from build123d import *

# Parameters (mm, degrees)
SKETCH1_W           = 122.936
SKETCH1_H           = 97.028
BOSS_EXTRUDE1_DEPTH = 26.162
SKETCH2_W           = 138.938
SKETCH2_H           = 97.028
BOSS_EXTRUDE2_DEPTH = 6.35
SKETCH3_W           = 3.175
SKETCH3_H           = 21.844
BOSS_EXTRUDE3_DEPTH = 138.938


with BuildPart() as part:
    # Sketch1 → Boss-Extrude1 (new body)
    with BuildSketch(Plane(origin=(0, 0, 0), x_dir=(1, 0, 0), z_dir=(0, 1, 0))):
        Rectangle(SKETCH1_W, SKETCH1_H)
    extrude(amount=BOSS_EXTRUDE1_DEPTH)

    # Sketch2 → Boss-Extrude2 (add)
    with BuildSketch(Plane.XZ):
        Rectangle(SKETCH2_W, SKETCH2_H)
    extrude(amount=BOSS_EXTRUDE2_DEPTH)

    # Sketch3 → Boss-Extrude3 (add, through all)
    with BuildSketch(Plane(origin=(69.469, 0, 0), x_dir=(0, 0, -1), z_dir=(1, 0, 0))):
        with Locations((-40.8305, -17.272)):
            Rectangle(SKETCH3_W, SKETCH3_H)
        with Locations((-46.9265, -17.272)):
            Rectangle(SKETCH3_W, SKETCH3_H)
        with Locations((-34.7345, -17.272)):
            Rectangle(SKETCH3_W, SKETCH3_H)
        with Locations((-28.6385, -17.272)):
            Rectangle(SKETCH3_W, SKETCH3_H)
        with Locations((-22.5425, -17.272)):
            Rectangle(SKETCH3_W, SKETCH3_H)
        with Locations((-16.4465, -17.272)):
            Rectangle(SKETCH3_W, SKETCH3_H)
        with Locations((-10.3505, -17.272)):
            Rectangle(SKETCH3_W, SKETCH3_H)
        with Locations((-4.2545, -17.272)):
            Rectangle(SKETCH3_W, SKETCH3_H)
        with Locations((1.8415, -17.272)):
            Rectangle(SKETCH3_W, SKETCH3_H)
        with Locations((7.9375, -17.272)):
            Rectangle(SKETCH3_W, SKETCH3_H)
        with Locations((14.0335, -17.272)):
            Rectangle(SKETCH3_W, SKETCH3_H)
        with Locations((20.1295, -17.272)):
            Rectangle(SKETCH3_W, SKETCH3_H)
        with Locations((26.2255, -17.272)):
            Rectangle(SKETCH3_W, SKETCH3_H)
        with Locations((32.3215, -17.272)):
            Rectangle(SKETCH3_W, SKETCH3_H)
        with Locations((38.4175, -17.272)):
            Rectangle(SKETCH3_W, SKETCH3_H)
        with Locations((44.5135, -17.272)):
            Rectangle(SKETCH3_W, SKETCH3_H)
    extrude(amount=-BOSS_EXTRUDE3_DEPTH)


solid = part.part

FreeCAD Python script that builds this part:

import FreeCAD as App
import Part
import Sketcher

V = App.Vector
Q = App.Units.Quantity


def add_polygon(sketch, points):
    """Adds a closed chain of lines whose ends are joined by coincident constraints."""
    first, n = sketch.GeometryCount, len(points)
    for a, b in zip(points, points[1:] + points[:1]):
        sketch.addGeometry(Part.LineSegment(App.Vector(*a, 0), App.Vector(*b, 0)), False)
    for i in range(n):
        sketch.addConstraint(Sketcher.Constraint("Coincident", first + i, 2, first + (i + 1) % n, 1))

doc = App.newDocument("Part")
body = doc.addObject("PartDesign::Body", "Body")

# Sketch on XZ plane
sketch1 = body.newObject("Sketcher::SketchObject", "Sketch")
sketch1.AttachmentSupport = (doc.getObject("XZ_Plane"), [""])
sketch1.MapMode = "FlatFace"
add_polygon(sketch1, [(-61.468, -48.514), (-61.468, 48.514), (61.468, 48.514), (61.468, -48.514)])  # lines 0-3
sketch1.addConstraint(Sketcher.Constraint("Vertical", 0))
sketch1.addConstraint(Sketcher.Constraint("Horizontal", 1))
sketch1.addConstraint(Sketcher.Constraint("Vertical", 2))
sketch1.addConstraint(Sketcher.Constraint("Horizontal", 3))
sketch1.addConstraint(Sketcher.Constraint("Symmetric", 0, 2, 2, 2, -1, 1))
sketch1.addConstraint(Sketcher.Constraint("DistanceX", 1, 1, 1, 2, Q("4.84 in")))
sketch1.addConstraint(Sketcher.Constraint("DistanceY", 0, 1, 0, 2, Q("3.82 in")))
pad1 = body.newObject("PartDesign::Pad", "Pad")
pad1.Profile = sketch1
pad1.Length = Q("1.03 in")
pad1.Reversed = True

# Sketch on XZ plane
sketch2 = body.newObject("Sketcher::SketchObject", "Sketch001")
sketch2.AttachmentSupport = (doc.getObject("XZ_Plane"), [""])
sketch2.MapMode = "FlatFace"
add_polygon(sketch2, [(-69.469, 48.514), (-69.469, -48.514), (69.469, -48.514), (69.469, 48.514)])  # lines 0-3
sketch2.addConstraint(Sketcher.Constraint("Vertical", 0))
sketch2.addConstraint(Sketcher.Constraint("Horizontal", 1))
sketch2.addConstraint(Sketcher.Constraint("Vertical", 2))
sketch2.addConstraint(Sketcher.Constraint("Horizontal", 3))
sketch2.addConstraint(Sketcher.Constraint("Symmetric", 0, 2, 2, 2, -1, 1))
sketch2.addConstraint(Sketcher.Constraint("DistanceX", 1, 1, 1, 2, Q("5.47 in")))
sketch2.addConstraint(Sketcher.Constraint("DistanceY", 0, 2, 0, 1, Q("3.82 in")))
pad2 = body.newObject("PartDesign::Pad", "Pad001")
pad2.Profile = sketch2
pad2.Length = Q("0.25 in")

# Sketch on YZ plane
sketch3 = body.newObject("Sketcher::SketchObject", "Sketch002")
sketch3.AttachmentSupport = (doc.getObject("YZ_Plane"), [""])
sketch3.MapMode = "FlatFace"
sketch3.AttachmentOffset = App.Placement(V(0, 0, 2.735 * 25.4), App.Rotation())
add_polygon(sketch3, [(-6.35, 42.418), (-28.194, 42.418), (-28.194, 39.243), (-6.35, 39.243)])  # lines 0-3
add_polygon(sketch3, [(-6.35, 48.514), (-28.194, 48.514), (-28.194, 45.339), (-6.35, 45.339)])  # lines 4-7
add_polygon(sketch3, [(-6.35, 36.322), (-28.194, 36.322), (-28.194, 33.147), (-6.35, 33.147)])  # lines 8-11
add_polygon(sketch3, [(-6.35, 30.226), (-28.194, 30.226), (-28.194, 27.051), (-6.35, 27.051)])  # lines 12-15
add_polygon(sketch3, [(-6.35, 24.13), (-28.194, 24.13), (-28.194, 20.955), (-6.35, 20.955)])  # lines 16-19
add_polygon(sketch3, [(-6.35, 18.034), (-28.194, 18.034), (-28.194, 14.859), (-6.35, 14.859)])  # lines 20-23
add_polygon(sketch3, [(-6.35, 11.938), (-28.194, 11.938), (-28.194, 8.763), (-6.35, 8.763)])  # lines 24-27
add_polygon(sketch3, [(-6.35, 5.842), (-28.194, 5.842), (-28.194, 2.667), (-6.35, 2.667)])  # lines 28-31
add_polygon(sketch3, [(-6.35, -0.254), (-28.194, -0.254), (-28.194, -3.429), (-6.35, -3.429)])  # lines 32-35
add_polygon(sketch3, [(-6.35, -6.35), (-28.194, -6.35), (-28.194, -9.525), (-6.35, -9.525)])  # lines 36-39
add_polygon(sketch3, [(-6.35, -12.446), (-28.194, -12.446), (-28.194, -15.621), (-6.35, -15.621)])  # lines 40-43
add_polygon(sketch3, [(-6.35, -18.542), (-28.194, -18.542), (-28.194, -21.717), (-6.35, -21.717)])  # lines 44-47
add_polygon(sketch3, [(-6.35, -24.638), (-28.194, -24.638), (-28.194, -27.813), (-6.35, -27.813)])  # lines 48-51
add_polygon(sketch3, [(-6.35, -30.734), (-28.194, -30.734), (-28.194, -33.909), (-6.35, -33.909)])  # lines 52-55
add_polygon(sketch3, [(-6.35, -36.83), (-28.194, -36.83), (-28.194, -40.005), (-6.35, -40.005)])  # lines 56-59
add_polygon(sketch3, [(-6.35, -42.926), (-28.194, -42.926), (-28.194, -46.101), (-6.35, -46.101)])  # lines 60-63
sketch3.addConstraint(Sketcher.Constraint("Horizontal", 0))
sketch3.addConstraint(Sketcher.Constraint("Vertical", 1))
sketch3.addConstraint(Sketcher.Constraint("Horizontal", 2))
sketch3.addConstraint(Sketcher.Constraint("Vertical", 3))
sketch3.addConstraint(Sketcher.Constraint("Horizontal", 4))
sketch3.addConstraint(Sketcher.Constraint("Vertical", 5))
sketch3.addConstraint(Sketcher.Constraint("Horizontal", 6))
sketch3.addConstraint(Sketcher.Constraint("Vertical", 7))
sketch3.addConstraint(Sketcher.Constraint("Horizontal", 8))
sketch3.addConstraint(Sketcher.Constraint("Vertical", 9))
sketch3.addConstraint(Sketcher.Constraint("Horizontal", 10))
sketch3.addConstraint(Sketcher.Constraint("Vertical", 11))
sketch3.addConstraint(Sketcher.Constraint("Horizontal", 12))
sketch3.addConstraint(Sketcher.Constraint("Vertical", 13))
sketch3.addConstraint(Sketcher.Constraint("Horizontal", 14))
sketch3.addConstraint(Sketcher.Constraint("Vertical", 15))
sketch3.addConstraint(Sketcher.Constraint("Horizontal", 16))
sketch3.addConstraint(Sketcher.Constraint("Vertical", 17))
sketch3.addConstraint(Sketcher.Constraint("Horizontal", 18))
sketch3.addConstraint(Sketcher.Constraint("Vertical", 19))
sketch3.addConstraint(Sketcher.Constraint("Horizontal", 20))
sketch3.addConstraint(Sketcher.Constraint("Vertical", 21))
sketch3.addConstraint(Sketcher.Constraint("Horizontal", 22))
sketch3.addConstraint(Sketcher.Constraint("Vertical", 23))
sketch3.addConstraint(Sketcher.Constraint("Horizontal", 24))
sketch3.addConstraint(Sketcher.Constraint("Vertical", 25))
sketch3.addConstraint(Sketcher.Constraint("Horizontal", 26))
sketch3.addConstraint(Sketcher.Constraint("Vertical", 27))
sketch3.addConstraint(Sketcher.Constraint("Horizontal", 28))
sketch3.addConstraint(Sketcher.Constraint("Vertical", 29))
sketch3.addConstraint(Sketcher.Constraint("Horizontal", 30))
sketch3.addConstraint(Sketcher.Constraint("Vertical", 31))
sketch3.addConstraint(Sketcher.Constraint("Horizontal", 32))
sketch3.addConstraint(Sketcher.Constraint("Vertical", 33))
sketch3.addConstraint(Sketcher.Constraint("Horizontal", 34))
sketch3.addConstraint(Sketcher.Constraint("Vertical", 35))
sketch3.addConstraint(Sketcher.Constraint("Horizontal", 36))
sketch3.addConstraint(Sketcher.Constraint("Vertical", 37))
sketch3.addConstraint(Sketcher.Constraint("Horizontal", 38))
sketch3.addConstraint(Sketcher.Constraint("Vertical", 39))
sketch3.addConstraint(Sketcher.Constraint("Horizontal", 40))
sketch3.addConstraint(Sketcher.Constraint("Vertical", 41))
sketch3.addConstraint(Sketcher.Constraint("Horizontal", 42))
sketch3.addConstraint(Sketcher.Constraint("Vertical", 43))
sketch3.addConstraint(Sketcher.Constraint("Horizontal", 44))
sketch3.addConstraint(Sketcher.Constraint("Vertical", 45))
sketch3.addConstraint(Sketcher.Constraint("Horizontal", 46))
sketch3.addConstraint(Sketcher.Constraint("Vertical", 47))
sketch3.addConstraint(Sketcher.Constraint("Horizontal", 48))
sketch3.addConstraint(Sketcher.Constraint("Vertical", 49))
sketch3.addConstraint(Sketcher.Constraint("Horizontal", 50))
sketch3.addConstraint(Sketcher.Constraint("Vertical", 51))
sketch3.addConstraint(Sketcher.Constraint("Horizontal", 52))
sketch3.addConstraint(Sketcher.Constraint("Vertical", 53))
sketch3.addConstraint(Sketcher.Constraint("Horizontal", 54))
sketch3.addConstraint(Sketcher.Constraint("Vertical", 55))
sketch3.addConstraint(Sketcher.Constraint("Horizontal", 56))
sketch3.addConstraint(Sketcher.Constraint("Vertical", 57))
sketch3.addConstraint(Sketcher.Constraint("Horizontal", 58))
sketch3.addConstraint(Sketcher.Constraint("Vertical", 59))
sketch3.addConstraint(Sketcher.Constraint("Horizontal", 60))
sketch3.addConstraint(Sketcher.Constraint("Vertical", 61))
sketch3.addConstraint(Sketcher.Constraint("Horizontal", 62))
sketch3.addConstraint(Sketcher.Constraint("Vertical", 63))
sketch3.addConstraint(Sketcher.Constraint("Vertical", 1, 2, 4, 2))
sketch3.addConstraint(Sketcher.Constraint("Vertical", 3, 2, 6, 2))
sketch3.addConstraint(Sketcher.Constraint("Vertical", 5, 2, 8, 2))
sketch3.addConstraint(Sketcher.Constraint("Vertical", 7, 2, 10, 2))
sketch3.addConstraint(Sketcher.Constraint("Vertical", 9, 2, 12, 2))
sketch3.addConstraint(Sketcher.Constraint("Vertical", 11, 2, 14, 2))
sketch3.addConstraint(Sketcher.Constraint("Vertical", 13, 2, 16, 2))
sketch3.addConstraint(Sketcher.Constraint("Vertical", 15, 2, 18, 2))
sketch3.addConstraint(Sketcher.Constraint("Vertical", 17, 2, 20, 2))
sketch3.addConstraint(Sketcher.Constraint("Vertical", 19, 2, 22, 2))
sketch3.addConstraint(Sketcher.Constraint("Vertical", 21, 2, 24, 2))
sketch3.addConstraint(Sketcher.Constraint("Vertical", 23, 2, 26, 2))
sketch3.addConstraint(Sketcher.Constraint("Vertical", 25, 2, 28, 2))
sketch3.addConstraint(Sketcher.Constraint("Vertical", 27, 2, 30, 2))
sketch3.addConstraint(Sketcher.Constraint("Vertical", 29, 2, 32, 2))
sketch3.addConstraint(Sketcher.Constraint("Vertical", 31, 2, 34, 2))
sketch3.addConstraint(Sketcher.Constraint("Vertical", 33, 2, 36, 2))
sketch3.addConstraint(Sketcher.Constraint("Vertical", 35, 2, 38, 2))
sketch3.addConstraint(Sketcher.Constraint("Vertical", 37, 2, 40, 2))
sketch3.addConstraint(Sketcher.Constraint("Vertical", 39, 2, 42, 2))
sketch3.addConstraint(Sketcher.Constraint("Vertical", 41, 2, 44, 2))
sketch3.addConstraint(Sketcher.Constraint("Vertical", 43, 2, 46, 2))
sketch3.addConstraint(Sketcher.Constraint("Vertical", 45, 2, 48, 2))
sketch3.addConstraint(Sketcher.Constraint("Vertical", 47, 2, 50, 2))
sketch3.addConstraint(Sketcher.Constraint("Vertical", 49, 2, 52, 2))
sketch3.addConstraint(Sketcher.Constraint("Vertical", 51, 2, 54, 2))
sketch3.addConstraint(Sketcher.Constraint("Vertical", 53, 2, 56, 2))
sketch3.addConstraint(Sketcher.Constraint("Vertical", 55, 2, 58, 2))
sketch3.addConstraint(Sketcher.Constraint("Vertical", 57, 2, 60, 2))
sketch3.addConstraint(Sketcher.Constraint("Vertical", 59, 2, 62, 2))
sketch3.addConstraint(Sketcher.Constraint("Equal", 3, 5))
sketch3.addConstraint(Sketcher.Constraint("Equal", 7, 9))
sketch3.addConstraint(Sketcher.Constraint("Equal", 11, 13))
sketch3.addConstraint(Sketcher.Constraint("Equal", 15, 17))
sketch3.addConstraint(Sketcher.Constraint("Equal", 19, 21))
sketch3.addConstraint(Sketcher.Constraint("Equal", 23, 25))
sketch3.addConstraint(Sketcher.Constraint("Equal", 27, 29))
sketch3.addConstraint(Sketcher.Constraint("Equal", 31, 33))
sketch3.addConstraint(Sketcher.Constraint("Equal", 35, 37))
sketch3.addConstraint(Sketcher.Constraint("Equal", 39, 41))
sketch3.addConstraint(Sketcher.Constraint("Equal", 43, 45))
sketch3.addConstraint(Sketcher.Constraint("Equal", 47, 49))
sketch3.addConstraint(Sketcher.Constraint("Equal", 51, 53))
sketch3.addConstraint(Sketcher.Constraint("Equal", 55, 57))
sketch3.addConstraint(Sketcher.Constraint("Equal", 59, 61))
sketch3.addConstraint(Sketcher.Constraint("DistanceX", 0, 2, 0, 1, Q("0.86 in")))
sketch3.addConstraint(Sketcher.Constraint("DistanceY", 1, 2, 1, 1, Q("0.125 in")))
sketch3.addConstraint(Sketcher.Constraint("DistanceX", 0, 2, -1, 1, Q("1.11 in")))
sketch3.addConstraint(Sketcher.Constraint("DistanceY", -1, 1, 0, 2, Q("1.67 in")))
sketch3.addConstraint(Sketcher.Constraint("DistanceY", -1, 1, 4, 2, Q("1.91 in")))
sketch3.addConstraint(Sketcher.Constraint("DistanceY", -1, 1, 8, 2, Q("1.43 in")))
sketch3.addConstraint(Sketcher.Constraint("DistanceY", -1, 1, 12, 2, Q("1.19 in")))
sketch3.addConstraint(Sketcher.Constraint("DistanceY", -1, 1, 16, 2, Q("0.95 in")))
sketch3.addConstraint(Sketcher.Constraint("DistanceY", -1, 1, 20, 2, Q("0.71 in")))
sketch3.addConstraint(Sketcher.Constraint("DistanceY", -1, 1, 24, 2, Q("0.47 in")))
sketch3.addConstraint(Sketcher.Constraint("DistanceY", -1, 1, 28, 2, Q("0.23 in")))
sketch3.addConstraint(Sketcher.Constraint("DistanceY", 32, 2, -1, 1, Q("0.01 in")))
sketch3.addConstraint(Sketcher.Constraint("DistanceY", 36, 2, -1, 1, Q("0.25 in")))
sketch3.addConstraint(Sketcher.Constraint("DistanceY", 40, 2, -1, 1, Q("0.49 in")))
sketch3.addConstraint(Sketcher.Constraint("DistanceY", 44, 2, -1, 1, Q("0.73 in")))
sketch3.addConstraint(Sketcher.Constraint("DistanceY", 48, 2, -1, 1, Q("0.97 in")))
sketch3.addConstraint(Sketcher.Constraint("DistanceY", 52, 2, -1, 1, Q("1.21 in")))
sketch3.addConstraint(Sketcher.Constraint("DistanceY", 56, 2, -1, 1, Q("1.45 in")))
sketch3.addConstraint(Sketcher.Constraint("DistanceY", 60, 2, -1, 1, Q("1.69 in")))
pad3 = body.newObject("PartDesign::Pad", "Pad002")
pad3.Profile = sketch3
pad3.Length = Q("5.47 in")
pad3.Reversed = True

doc.recompute()
